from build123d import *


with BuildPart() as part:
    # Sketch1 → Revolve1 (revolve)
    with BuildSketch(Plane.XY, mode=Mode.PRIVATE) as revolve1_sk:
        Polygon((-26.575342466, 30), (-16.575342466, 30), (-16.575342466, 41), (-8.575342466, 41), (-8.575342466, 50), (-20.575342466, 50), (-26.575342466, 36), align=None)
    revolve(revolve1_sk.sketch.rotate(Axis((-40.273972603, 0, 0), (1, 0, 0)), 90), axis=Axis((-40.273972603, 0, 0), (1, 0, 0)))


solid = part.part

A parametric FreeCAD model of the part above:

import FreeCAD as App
import Part
import Sketcher
from FreeCAD import Vector

doc = App.newDocument("Part")
body = doc.addObject("PartDesign::Body", "Body")

# Sketch on XY plane
sketch1 = doc.addObject("Sketcher::SketchObject", "Sketch")
body.addObject(sketch1)
sketch1.AttachmentSupport = (doc.XY_Plane, [""])
sketch1.MapMode = "FlatFace"
sketch1.addGeometry(Part.LineSegment(Vector(-27, 30, 0), Vector(-17, 30, 0)), False)
sketch1.addGeometry(Part.LineSegment(Vector(-17, 30, 0), Vector(-17, 41, 0)), False)
sketch1.addGeometry(Part.LineSegment(Vector(-17, 41, 0), Vector(-9, 41, 0)), False)
sketch1.addGeometry(Part.LineSegment(Vector(-9, 41, 0), Vector(-9, 50, 0)), False)
sketch1.addGeometry(Part.LineSegment(Vector(-9, 50, 0), Vector(-21, 50, 0)), False)
sketch1.addGeometry(Part.LineSegment(Vector(-21, 50, 0), Vector(-27, 36, 0)), False)
sketch1.addGeometry(Part.LineSegment(Vector(-27, 36, 0), Vector(-27, 30, 0)), False)
sketch1.addConstraint(Sketcher.Constraint("Coincident", 0, 2, 1, 1))
sketch1.addConstraint(Sketcher.Constraint("Coincident", 1, 2, 2, 1))
sketch1.addConstraint(Sketcher.Constraint("Coincident", 2, 2, 3, 1))
sketch1.addConstraint(Sketcher.Constraint("Coincident", 3, 2, 4, 1))
sketch1.addConstraint(Sketcher.Constraint("Coincident", 4, 2, 5, 1))
sketch1.addConstraint(Sketcher.Constraint("Coincident", 5, 2, 6, 1))
sketch1.addConstraint(Sketcher.Constraint("Coincident", 6, 2, 0, 1))
sketch1.addConstraint(Sketcher.Constraint("Horizontal", 0))
sketch1.addConstraint(Sketcher.Constraint("Vertical", 1))
sketch1.addConstraint(Sketcher.Constraint("Horizontal", 2))
sketch1.addConstraint(Sketcher.Constraint("Vertical", 3))
sketch1.addConstraint(Sketcher.Constraint("Horizontal", 4))
sketch1.addConstraint(Sketcher.Constraint("Vertical", 6))
sketch1.addConstraint(Sketcher.Constraint("DistanceX", 0, 1, 0, 2, 10.0))
sketch1.addConstraint(Sketcher.Constraint("DistanceX", 2, 1, 2, 2, 8.0))
sketch1.addConstraint(Sketcher.Constraint("DistanceX", 4, 2, 4, 1, 12.0))
sketch1.addConstraint(Sketcher.Constraint("DistanceY", 1, 1, 1, 2, 11.0))
sketch1.addConstraint(Sketcher.Constraint("DistanceY", 3, 1, 3, 2, 9.0))
sketch1.addConstraint(Sketcher.Constraint("DistanceY", 6, 2, 6, 1, 6.0))
sketch1.addConstraint(Sketcher.Constraint("DistanceY", -1, 1, 0, 2, 30.0))
sketch1.addConstraint(Sketcher.Constraint("DistanceX", 0, 2, -1, 1, 16.575342))
revolution = doc.addObject("PartDesign::Revolution", "Revolution")
body.addObject(revolution)
revolution.Profile = sketch1
revolution.ReferenceAxis = (sketch1, ["H_Axis"])
revolution.Angle = 360

doc.recompute()
